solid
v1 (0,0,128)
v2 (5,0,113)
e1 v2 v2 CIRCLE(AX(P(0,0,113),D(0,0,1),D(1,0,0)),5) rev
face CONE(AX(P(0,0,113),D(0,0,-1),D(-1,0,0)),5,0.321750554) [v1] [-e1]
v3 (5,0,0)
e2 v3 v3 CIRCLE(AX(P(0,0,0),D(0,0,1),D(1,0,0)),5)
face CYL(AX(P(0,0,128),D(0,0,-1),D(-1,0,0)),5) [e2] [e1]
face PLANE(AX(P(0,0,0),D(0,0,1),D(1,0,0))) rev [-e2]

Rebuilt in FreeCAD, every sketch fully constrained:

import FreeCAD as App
import Part
import Sketcher


def edges_at(feature, points):
    """Names of the edges that pass closest to the given points."""
    edges = feature.Shape.Edges
    near = lambda p: min(range(len(edges)), key=lambda i: edges[i].distToShape(Part.Vertex(*p))[0])
    return sorted({f"Edge{near(p) + 1}" for p in points})

doc = App.newDocument("Part")
body = doc.addObject("PartDesign::Body", "Body")

sketch1 = body.newObject("Sketcher::SketchObject", "Sketch")
sketch1.AttachmentSupport = (doc.getObject("XY_Plane"), [""])
sketch1.MapMode = "FlatFace"
sketch1.addGeometry(Part.Circle(App.Vector(0, 0, 0), App.Vector(0, 0, 1), 5), False)
sketch1.addConstraint(Sketcher.Constraint("Coincident", 0, 3, -1, 1))
sketch1.addConstraint(Sketcher.Constraint("Diameter", 0, 10.0))
pad1 = body.newObject("PartDesign::Pad", "Pad")
pad1.Profile = sketch1
pad1.Length = 128
doc.recompute()

chamfer = body.newObject("PartDesign::Chamfer", "Chamfer")
chamfer.Base = (pad1, edges_at(pad1, [(-5, 0, 128)]))
chamfer.ChamferType = "Two distances"
chamfer.Size = 15
chamfer.Size2 = 5

doc.recompute()
